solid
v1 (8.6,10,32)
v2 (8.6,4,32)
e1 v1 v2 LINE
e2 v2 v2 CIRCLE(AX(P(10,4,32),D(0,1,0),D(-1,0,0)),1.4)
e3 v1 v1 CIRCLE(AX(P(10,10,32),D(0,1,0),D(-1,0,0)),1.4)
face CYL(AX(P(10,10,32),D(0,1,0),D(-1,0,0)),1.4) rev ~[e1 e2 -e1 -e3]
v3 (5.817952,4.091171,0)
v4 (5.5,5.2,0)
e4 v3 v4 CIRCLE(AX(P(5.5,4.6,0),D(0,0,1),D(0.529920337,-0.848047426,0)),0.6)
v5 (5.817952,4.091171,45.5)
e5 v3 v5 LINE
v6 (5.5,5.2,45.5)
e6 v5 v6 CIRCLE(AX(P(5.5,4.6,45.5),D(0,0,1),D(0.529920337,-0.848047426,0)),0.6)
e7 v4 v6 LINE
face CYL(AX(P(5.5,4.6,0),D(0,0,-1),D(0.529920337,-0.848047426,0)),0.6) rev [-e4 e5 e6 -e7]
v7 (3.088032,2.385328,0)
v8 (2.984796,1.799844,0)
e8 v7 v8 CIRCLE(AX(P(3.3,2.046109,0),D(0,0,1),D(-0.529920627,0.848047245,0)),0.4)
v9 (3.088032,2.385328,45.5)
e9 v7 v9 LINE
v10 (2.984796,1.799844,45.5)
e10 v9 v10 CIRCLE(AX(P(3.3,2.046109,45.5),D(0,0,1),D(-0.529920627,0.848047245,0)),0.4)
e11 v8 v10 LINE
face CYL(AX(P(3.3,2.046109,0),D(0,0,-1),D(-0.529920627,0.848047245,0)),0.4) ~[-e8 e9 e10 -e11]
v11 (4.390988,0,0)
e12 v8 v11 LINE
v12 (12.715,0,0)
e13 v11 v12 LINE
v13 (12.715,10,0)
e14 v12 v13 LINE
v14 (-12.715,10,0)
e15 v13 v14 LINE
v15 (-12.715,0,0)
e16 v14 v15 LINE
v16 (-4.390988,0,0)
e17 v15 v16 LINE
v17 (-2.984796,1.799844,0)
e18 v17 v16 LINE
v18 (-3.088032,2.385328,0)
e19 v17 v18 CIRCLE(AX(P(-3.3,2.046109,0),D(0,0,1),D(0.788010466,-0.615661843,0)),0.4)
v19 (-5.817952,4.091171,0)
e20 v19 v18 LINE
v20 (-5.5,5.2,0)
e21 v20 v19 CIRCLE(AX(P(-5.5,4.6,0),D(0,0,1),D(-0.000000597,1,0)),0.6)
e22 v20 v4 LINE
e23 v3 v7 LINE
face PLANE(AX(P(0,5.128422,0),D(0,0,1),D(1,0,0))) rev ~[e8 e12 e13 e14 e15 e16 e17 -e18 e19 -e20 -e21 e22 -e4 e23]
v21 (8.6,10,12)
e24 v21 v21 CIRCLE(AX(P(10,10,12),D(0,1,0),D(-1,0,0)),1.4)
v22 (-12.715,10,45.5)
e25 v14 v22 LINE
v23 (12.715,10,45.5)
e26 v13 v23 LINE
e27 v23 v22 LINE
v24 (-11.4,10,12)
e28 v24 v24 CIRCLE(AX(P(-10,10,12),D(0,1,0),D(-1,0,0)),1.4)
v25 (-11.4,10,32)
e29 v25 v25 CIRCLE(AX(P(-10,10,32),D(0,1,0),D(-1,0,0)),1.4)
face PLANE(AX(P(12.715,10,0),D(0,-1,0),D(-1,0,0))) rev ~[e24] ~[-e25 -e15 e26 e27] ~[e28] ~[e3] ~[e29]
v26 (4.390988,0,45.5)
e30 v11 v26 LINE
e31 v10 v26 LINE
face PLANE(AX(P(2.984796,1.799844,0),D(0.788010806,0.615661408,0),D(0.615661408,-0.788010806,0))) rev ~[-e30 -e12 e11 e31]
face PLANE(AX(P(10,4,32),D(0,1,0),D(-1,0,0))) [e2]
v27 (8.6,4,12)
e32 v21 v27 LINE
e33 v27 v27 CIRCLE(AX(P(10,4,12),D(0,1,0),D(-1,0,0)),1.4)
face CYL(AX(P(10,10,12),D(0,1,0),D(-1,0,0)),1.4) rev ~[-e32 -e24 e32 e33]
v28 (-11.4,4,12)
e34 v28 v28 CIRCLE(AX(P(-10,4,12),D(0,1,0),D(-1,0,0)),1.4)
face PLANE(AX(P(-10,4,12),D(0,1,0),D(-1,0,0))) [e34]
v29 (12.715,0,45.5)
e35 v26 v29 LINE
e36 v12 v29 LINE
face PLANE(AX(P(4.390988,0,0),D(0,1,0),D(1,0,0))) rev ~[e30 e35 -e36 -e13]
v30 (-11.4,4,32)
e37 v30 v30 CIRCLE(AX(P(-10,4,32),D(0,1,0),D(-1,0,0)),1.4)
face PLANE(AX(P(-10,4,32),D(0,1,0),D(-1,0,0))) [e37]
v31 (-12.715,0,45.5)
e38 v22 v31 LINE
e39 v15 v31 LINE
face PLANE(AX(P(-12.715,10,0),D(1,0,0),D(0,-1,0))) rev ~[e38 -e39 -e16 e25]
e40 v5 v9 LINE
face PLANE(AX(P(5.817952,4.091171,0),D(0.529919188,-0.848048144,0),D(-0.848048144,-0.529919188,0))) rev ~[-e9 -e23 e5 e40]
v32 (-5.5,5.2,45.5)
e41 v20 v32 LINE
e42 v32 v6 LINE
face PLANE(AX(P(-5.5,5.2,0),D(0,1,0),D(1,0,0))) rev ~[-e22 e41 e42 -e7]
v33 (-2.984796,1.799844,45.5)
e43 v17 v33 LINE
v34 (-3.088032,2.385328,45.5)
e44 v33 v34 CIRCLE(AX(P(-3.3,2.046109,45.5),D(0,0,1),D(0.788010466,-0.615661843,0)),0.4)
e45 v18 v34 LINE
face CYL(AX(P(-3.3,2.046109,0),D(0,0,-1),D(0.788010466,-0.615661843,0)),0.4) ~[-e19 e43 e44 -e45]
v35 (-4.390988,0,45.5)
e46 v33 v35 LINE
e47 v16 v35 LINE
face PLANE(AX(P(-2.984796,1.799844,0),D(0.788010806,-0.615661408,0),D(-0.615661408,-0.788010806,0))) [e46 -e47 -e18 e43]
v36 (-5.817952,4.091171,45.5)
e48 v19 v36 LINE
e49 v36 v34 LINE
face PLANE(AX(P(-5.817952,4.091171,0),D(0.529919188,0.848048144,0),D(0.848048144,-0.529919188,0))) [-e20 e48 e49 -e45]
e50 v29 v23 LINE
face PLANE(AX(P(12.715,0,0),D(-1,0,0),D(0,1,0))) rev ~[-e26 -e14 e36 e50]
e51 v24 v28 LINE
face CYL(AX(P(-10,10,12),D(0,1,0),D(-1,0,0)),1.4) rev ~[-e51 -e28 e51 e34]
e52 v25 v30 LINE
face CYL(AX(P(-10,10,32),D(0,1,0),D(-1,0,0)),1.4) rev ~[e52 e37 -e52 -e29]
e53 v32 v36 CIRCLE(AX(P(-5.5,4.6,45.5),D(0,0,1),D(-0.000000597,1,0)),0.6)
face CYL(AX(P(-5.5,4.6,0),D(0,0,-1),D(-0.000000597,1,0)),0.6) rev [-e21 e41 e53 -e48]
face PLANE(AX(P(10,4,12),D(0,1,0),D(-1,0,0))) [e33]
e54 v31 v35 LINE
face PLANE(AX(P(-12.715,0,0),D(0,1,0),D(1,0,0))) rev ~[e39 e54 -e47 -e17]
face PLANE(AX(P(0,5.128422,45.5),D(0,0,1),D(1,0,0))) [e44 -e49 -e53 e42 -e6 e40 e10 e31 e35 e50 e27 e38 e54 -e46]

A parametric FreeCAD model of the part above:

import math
import FreeCAD as App
import Part
import Sketcher
Q = App.Units.Quantity

doc = App.newDocument("Part")
body = doc.addObject("PartDesign::Body", "Body")

# Sketch on XY plane
sketch1 = body.newObject("Sketcher::SketchObject", "Sketch")
sketch1.AttachmentSupport = (doc.getObject("XY_Plane"), [""])
sketch1.MapMode = "FlatFace"
sketch1.addGeometry(Part.LineSegment(App.Vector(12.71, 0, 0), App.Vector(12.71, 10, 0)), False)
sketch1.addGeometry(Part.LineSegment(App.Vector(12.71, 10, 0), App.Vector(-12.71, 10, 0)), False)
sketch1.addGeometry(Part.LineSegment(App.Vector(-12.71, 10, 0), App.Vector(-12.71, 0, 0)), False)
sketch1.addGeometry(Part.LineSegment(App.Vector(-12.71, 0, 0), App.Vector(-4.39, 0, 0)), False)
sketch1.addGeometry(Part.LineSegment(App.Vector(-4.39, 0, 0), App.Vector(-2.98, 1.8, 0)), False)
sketch1.addGeometry(Part.ArcOfCircle(Part.Circle(App.Vector(-3.3, 2.05, 0), App.Vector(0, 0, 1), 0.4), math.radians(-38), math.radians(58)), False)
sketch1.addGeometry(Part.LineSegment(App.Vector(-3.09, 2.39, 0), App.Vector(-5.82, 4.09, 0)), False)
sketch1.addGeometry(Part.ArcOfCircle(Part.Circle(App.Vector(-5.5, 4.6, 0), App.Vector(0, 0, 1), 0.6), math.radians(90), math.radians(238)), False)
sketch1.addGeometry(Part.LineSegment(App.Vector(-5.5, 5.2, 0), App.Vector(5.5, 5.2, 0)), False)
sketch1.addGeometry(Part.ArcOfCircle(Part.Circle(App.Vector(5.5, 4.6, 0), App.Vector(0, 0, 1), 0.6), math.radians(-58), math.radians(90)), False)
sketch1.addGeometry(Part.LineSegment(App.Vector(5.82, 4.09, 0), App.Vector(3.09, 2.39, 0)), False)
sketch1.addGeometry(Part.ArcOfCircle(Part.Circle(App.Vector(3.3, 2.05, 0), App.Vector(0, 0, 1), 0.4), math.radians(122), math.radians(218)), False)
sketch1.addGeometry(Part.LineSegment(App.Vector(2.98, 1.8, 0), App.Vector(4.39, 0, 0)), False)
sketch1.addGeometry(Part.LineSegment(App.Vector(4.39, 0, 0), App.Vector(12.71, 0, 0)), False)
sketch1.addConstraint(Sketcher.Constraint("Coincident", 0, 2, 1, 1))
sketch1.addConstraint(Sketcher.Constraint("Coincident", 1, 2, 2, 1))
sketch1.addConstraint(Sketcher.Constraint("Coincident", 2, 2, 3, 1))
sketch1.addConstraint(Sketcher.Constraint("Coincident", 3, 2, 4, 1))
sketch1.addConstraint(Sketcher.Constraint("Tangent", 4, 2, 5, 1))
sketch1.addConstraint(Sketcher.Constraint("Tangent", 5, 2, 6, 1))
sketch1.addConstraint(Sketcher.Constraint("Tangent", 6, 2, 7, 2))
sketch1.addConstraint(Sketcher.Constraint("Tangent", 7, 1, 8, 1))
sketch1.addConstraint(Sketcher.Constraint("Tangent", 8, 2, 9, 2))
sketch1.addConstraint(Sketcher.Constraint("Tangent", 9, 1, 10, 1))
sketch1.addConstraint(Sketcher.Constraint("Tangent", 10, 2, 11, 1))
sketch1.addConstraint(Sketcher.Constraint("Tangent", 11, 2, 12, 1))
sketch1.addConstraint(Sketcher.Constraint("Coincident", 12, 2, 13, 1))
sketch1.addConstraint(Sketcher.Constraint("Coincident", 13, 2, 0, 1))
sketch1.addConstraint(Sketcher.Constraint("Vertical", 0))
sketch1.addConstraint(Sketcher.Constraint("Horizontal", 1))
sketch1.addConstraint(Sketcher.Constraint("Vertical", 2))
sketch1.addConstraint(Sketcher.Constraint("Horizontal", 3))
sketch1.addConstraint(Sketcher.Constraint("Horizontal", 8))
sketch1.addConstraint(Sketcher.Constraint("Horizontal", 13))
sketch1.addConstraint(Sketcher.Constraint("Equal", 7, 9))
sketch1.addConstraint(Sketcher.Constraint("Equal", 5, 11))
sketch1.addConstraint(Sketcher.Constraint("Symmetric", 3, 2, 12, 2, -1, 1))
sketch1.addConstraint(Sketcher.Constraint("Symmetric", 5, 3, 11, 3, -2))
sketch1.addConstraint(Sketcher.Constraint("Symmetric", 2, 2, 13, 2, -2))
sketch1.addConstraint(Sketcher.Constraint("Horizontal", 6, 2, 9, 1))
sketch1.addConstraint(Sketcher.Constraint("Radius", 5, 0.4))
sketch1.addConstraint(Sketcher.Constraint("Radius", 7, 0.6))
sketch1.addConstraint(Sketcher.Constraint("DistanceX", 8, 1, 8, 2, 11.0))
sketch1.addConstraint(Sketcher.Constraint("DistanceY", 0, 1, 0, 2, 10.0))
sketch1.addConstraint(Sketcher.Constraint("Angle", 4, Q("52.000005 deg")))
sketch1.addConstraint(Sketcher.Constraint("Angle", 6, Q("148.000005 deg")))
sketch1.addConstraint(Sketcher.Constraint("DistanceX", 1, 2, 1, 1, 25.43))
sketch1.addConstraint(Sketcher.Constraint("DistanceX", 5, 3, -1, 1, 3.3))
sketch1.addConstraint(Sketcher.Constraint("DistanceY", -1, 1, 7, 3, 4.6))
pad1 = body.newObject("PartDesign::Pad", "Pad")
pad1.Profile = sketch1
pad1.Length = 45.5

# Sketch on XZ plane
sketch2 = body.newObject("Sketcher::SketchObject", "Sketch001")
sketch2.AttachmentSupport = (doc.getObject("XZ_Plane"), [""])
sketch2.MapMode = "FlatFace"
sketch2.AttachmentOffset = App.Placement(App.Vector(0, 0, -10), App.Rotation())
sketch2.addGeometry(Part.Circle(App.Vector(10, 12, 0), App.Vector(0, 0, 1), 1.4), False)
sketch2.addGeometry(Part.Circle(App.Vector(10, 32, 0), App.Vector(0, 0, 1), 1.4), False)
sketch2.addGeometry(Part.Circle(App.Vector(-10, 32, 0), App.Vector(0, 0, 1), 1.4), False)
sketch2.addGeometry(Part.Circle(App.Vector(-10, 12, 0), App.Vector(0, 0, 1), 1.4), False)
sketch2.addConstraint(Sketcher.Constraint("Equal", 0, 1))
sketch2.addConstraint(Sketcher.Constraint("Equal", 1, 2))
sketch2.addConstraint(Sketcher.Constraint("Equal", 2, 3))
sketch2.addConstraint(Sketcher.Constraint("Symmetric", 1, 3, 2, 3, -2))
sketch2.addConstraint(Sketcher.Constraint("Symmetric", 0, 3, 3, 3, -2))
sketch2.addConstraint(Sketcher.Constraint("Vertical", 0, 3, 1, 3))
sketch2.addConstraint(Sketcher.Constraint("Diameter", 0, 2.8))
sketch2.addConstraint(Sketcher.Constraint("DistanceX", -1, 1, 0, 3, 10.0))
sketch2.addConstraint(Sketcher.Constraint("DistanceY", -1, 1, 0, 3, 12.0))
sketch2.addConstraint(Sketcher.Constraint("DistanceY", -1, 1, 1, 3, 32.0))
pocket1 = body.newObject("PartDesign::Pocket", "Pocket")
pocket1.Profile = sketch2
pocket1.Length = 6
pocket1.Reversed = True

doc.recompute()
